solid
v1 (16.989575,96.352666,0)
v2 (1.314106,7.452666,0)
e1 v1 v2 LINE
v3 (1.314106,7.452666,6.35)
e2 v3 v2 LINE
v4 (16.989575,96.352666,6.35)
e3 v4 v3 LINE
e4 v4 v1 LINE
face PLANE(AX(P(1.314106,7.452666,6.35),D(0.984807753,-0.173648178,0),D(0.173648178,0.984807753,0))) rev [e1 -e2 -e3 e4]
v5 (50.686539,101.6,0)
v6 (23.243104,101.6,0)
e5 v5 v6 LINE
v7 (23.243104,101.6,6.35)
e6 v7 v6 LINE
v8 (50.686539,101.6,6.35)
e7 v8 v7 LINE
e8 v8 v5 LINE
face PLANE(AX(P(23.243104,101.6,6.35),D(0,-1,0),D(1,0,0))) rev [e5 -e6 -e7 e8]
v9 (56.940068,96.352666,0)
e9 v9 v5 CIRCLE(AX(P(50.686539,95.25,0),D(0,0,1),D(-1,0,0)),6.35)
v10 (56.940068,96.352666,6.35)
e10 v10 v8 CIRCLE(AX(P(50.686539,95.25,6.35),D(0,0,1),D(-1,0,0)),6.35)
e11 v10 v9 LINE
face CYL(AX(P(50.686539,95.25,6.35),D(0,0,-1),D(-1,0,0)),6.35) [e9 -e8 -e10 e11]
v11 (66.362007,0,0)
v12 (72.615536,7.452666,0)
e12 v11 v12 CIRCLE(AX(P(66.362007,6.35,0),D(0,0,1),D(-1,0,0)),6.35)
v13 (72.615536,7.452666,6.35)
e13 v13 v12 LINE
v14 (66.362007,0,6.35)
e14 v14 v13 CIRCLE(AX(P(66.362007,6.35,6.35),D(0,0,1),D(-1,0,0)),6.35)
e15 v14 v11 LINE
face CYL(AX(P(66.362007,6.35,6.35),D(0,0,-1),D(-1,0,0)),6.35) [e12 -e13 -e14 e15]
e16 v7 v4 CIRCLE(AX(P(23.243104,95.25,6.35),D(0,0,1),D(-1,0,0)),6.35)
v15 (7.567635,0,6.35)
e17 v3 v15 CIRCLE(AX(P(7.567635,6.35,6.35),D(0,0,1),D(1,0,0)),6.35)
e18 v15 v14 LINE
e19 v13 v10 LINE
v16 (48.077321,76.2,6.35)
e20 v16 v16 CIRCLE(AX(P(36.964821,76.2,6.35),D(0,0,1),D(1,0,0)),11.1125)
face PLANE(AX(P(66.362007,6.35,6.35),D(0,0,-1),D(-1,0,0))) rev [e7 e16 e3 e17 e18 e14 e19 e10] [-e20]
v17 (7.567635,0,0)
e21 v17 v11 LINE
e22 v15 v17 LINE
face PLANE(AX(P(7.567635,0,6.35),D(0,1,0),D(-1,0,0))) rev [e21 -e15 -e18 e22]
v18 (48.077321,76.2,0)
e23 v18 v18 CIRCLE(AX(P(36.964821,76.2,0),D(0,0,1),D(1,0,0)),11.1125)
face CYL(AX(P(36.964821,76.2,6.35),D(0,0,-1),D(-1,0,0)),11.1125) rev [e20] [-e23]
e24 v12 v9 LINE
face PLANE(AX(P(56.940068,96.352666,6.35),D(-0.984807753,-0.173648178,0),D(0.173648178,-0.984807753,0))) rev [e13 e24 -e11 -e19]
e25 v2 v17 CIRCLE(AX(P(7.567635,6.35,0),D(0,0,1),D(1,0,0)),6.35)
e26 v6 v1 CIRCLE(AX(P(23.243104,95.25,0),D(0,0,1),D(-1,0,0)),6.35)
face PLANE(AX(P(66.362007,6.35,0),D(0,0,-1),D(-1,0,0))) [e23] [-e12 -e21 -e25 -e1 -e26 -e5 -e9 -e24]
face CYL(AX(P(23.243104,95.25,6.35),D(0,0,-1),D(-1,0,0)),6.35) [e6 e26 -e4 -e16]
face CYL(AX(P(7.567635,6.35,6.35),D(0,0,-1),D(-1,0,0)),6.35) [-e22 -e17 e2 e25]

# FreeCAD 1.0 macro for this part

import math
import FreeCAD as App
import Part
import Sketcher
Q = App.Units.Quantity

doc = App.newDocument("Part")
params = doc.addObject("Spreadsheet::Sheet", "Params")
for row, (alias, value) in enumerate([
    ("sketch1_radius", "0.25 in"),
    ("sketch1_diameter", "0.875 in"),
    ("pad1_length", "0.25 in"),
], start=1):
    params.set(f"A{row}", alias)
    params.set(f"B{row}", "=" + value)
    params.setAlias(f"B{row}", alias)

body = doc.addObject("PartDesign::Body", "Body")

# Sketch on XY plane
sketch1 = doc.addObject("Sketcher::SketchObject", "Sketch")
body.addObject(sketch1)
sketch1.AttachmentSupport = (doc.XY_Plane, [""])
sketch1.MapMode = "FlatFace"
sketch1.addGeometry([
    Part.LineSegment(App.Vector(17, 96, 0), App.Vector(1, 7, 0)),  # 0
    Part.ArcOfCircle(Part.Circle(App.Vector(8, 6, 0), App.Vector(0, 0, 1), 6), math.radians(170), math.radians(270)),  # 1
    Part.LineSegment(App.Vector(8, 0, 0), App.Vector(66, 0, 0)),  # 2
    Part.ArcOfCircle(Part.Circle(App.Vector(66, 6, 0), App.Vector(0, 0, 1), 6), math.radians(-90), math.radians(10)),  # 3
    Part.LineSegment(App.Vector(73, 7, 0), App.Vector(57, 96, 0)),  # 4
    Part.ArcOfCircle(Part.Circle(App.Vector(51, 95, 0), App.Vector(0, 0, 1), 6), math.radians(10), math.radians(90)),  # 5
    Part.LineSegment(App.Vector(51, 102, 0), App.Vector(23, 102, 0)),  # 6
    Part.ArcOfCircle(Part.Circle(App.Vector(23, 95, 0), App.Vector(0, 0, 1), 6), math.radians(90), math.radians(170)),  # 7
    Part.Circle(App.Vector(37, 76, 0), App.Vector(0, 0, 1), 11),  # 8
], False)
sketch1.addConstraint([
    Sketcher.Constraint("Tangent", 0, 2, 1, 1),
    Sketcher.Constraint("Tangent", 1, 2, 2, 1),
    Sketcher.Constraint("Tangent", 2, 2, 3, 1),
    Sketcher.Constraint("Tangent", 3, 2, 4, 1),
    Sketcher.Constraint("Tangent", 4, 2, 5, 1),
    Sketcher.Constraint("Tangent", 5, 2, 6, 1),
    Sketcher.Constraint("Tangent", 6, 2, 7, 1),
    Sketcher.Constraint("Tangent", 7, 2, 0, 1),
    Sketcher.Constraint("Horizontal", 2),
    Sketcher.Constraint("Horizontal", 6),
    Sketcher.Constraint("Equal", 1, 3),
    Sketcher.Constraint("Equal", 3, 5),
    Sketcher.Constraint("Equal", 5, 7),
    Sketcher.Constraint("PointOnObject", 1, 2, -1),
    Sketcher.Constraint("Horizontal", 0, 2, 3, 2),
    Sketcher.Constraint("Radius", 1, Q("0.25 in")),
    Sketcher.Constraint("Diameter", 8, Q("0.875 in")),
    Sketcher.Constraint("DistanceY", -1, 1, 8, 3, Q("3 in")),
    Sketcher.Constraint("DistanceY", -1, 1, 5, 2, Q("4 in")),
    Sketcher.Constraint("Angle", 0, Q("-100 deg")),
    Sketcher.Constraint("DistanceX", 2, 1, 2, 2, Q("58.794372 mm")),
    Sketcher.Constraint("DistanceX", -1, 1, 5, 3, Q("50.686539 mm")),
    Sketcher.Constraint("DistanceX", -1, 1, 8, 3, Q("36.964821 mm")),
])
sketch1.setExpression("Constraints[15]", "Params.sketch1_radius")
sketch1.setExpression("Constraints[16]", "Params.sketch1_diameter")
pad1 = doc.addObject("PartDesign::Pad", "Pad")
body.addObject(pad1)
pad1.Profile = sketch1
pad1.setExpression("Length", "Params.pad1_length")

doc.recompute()
